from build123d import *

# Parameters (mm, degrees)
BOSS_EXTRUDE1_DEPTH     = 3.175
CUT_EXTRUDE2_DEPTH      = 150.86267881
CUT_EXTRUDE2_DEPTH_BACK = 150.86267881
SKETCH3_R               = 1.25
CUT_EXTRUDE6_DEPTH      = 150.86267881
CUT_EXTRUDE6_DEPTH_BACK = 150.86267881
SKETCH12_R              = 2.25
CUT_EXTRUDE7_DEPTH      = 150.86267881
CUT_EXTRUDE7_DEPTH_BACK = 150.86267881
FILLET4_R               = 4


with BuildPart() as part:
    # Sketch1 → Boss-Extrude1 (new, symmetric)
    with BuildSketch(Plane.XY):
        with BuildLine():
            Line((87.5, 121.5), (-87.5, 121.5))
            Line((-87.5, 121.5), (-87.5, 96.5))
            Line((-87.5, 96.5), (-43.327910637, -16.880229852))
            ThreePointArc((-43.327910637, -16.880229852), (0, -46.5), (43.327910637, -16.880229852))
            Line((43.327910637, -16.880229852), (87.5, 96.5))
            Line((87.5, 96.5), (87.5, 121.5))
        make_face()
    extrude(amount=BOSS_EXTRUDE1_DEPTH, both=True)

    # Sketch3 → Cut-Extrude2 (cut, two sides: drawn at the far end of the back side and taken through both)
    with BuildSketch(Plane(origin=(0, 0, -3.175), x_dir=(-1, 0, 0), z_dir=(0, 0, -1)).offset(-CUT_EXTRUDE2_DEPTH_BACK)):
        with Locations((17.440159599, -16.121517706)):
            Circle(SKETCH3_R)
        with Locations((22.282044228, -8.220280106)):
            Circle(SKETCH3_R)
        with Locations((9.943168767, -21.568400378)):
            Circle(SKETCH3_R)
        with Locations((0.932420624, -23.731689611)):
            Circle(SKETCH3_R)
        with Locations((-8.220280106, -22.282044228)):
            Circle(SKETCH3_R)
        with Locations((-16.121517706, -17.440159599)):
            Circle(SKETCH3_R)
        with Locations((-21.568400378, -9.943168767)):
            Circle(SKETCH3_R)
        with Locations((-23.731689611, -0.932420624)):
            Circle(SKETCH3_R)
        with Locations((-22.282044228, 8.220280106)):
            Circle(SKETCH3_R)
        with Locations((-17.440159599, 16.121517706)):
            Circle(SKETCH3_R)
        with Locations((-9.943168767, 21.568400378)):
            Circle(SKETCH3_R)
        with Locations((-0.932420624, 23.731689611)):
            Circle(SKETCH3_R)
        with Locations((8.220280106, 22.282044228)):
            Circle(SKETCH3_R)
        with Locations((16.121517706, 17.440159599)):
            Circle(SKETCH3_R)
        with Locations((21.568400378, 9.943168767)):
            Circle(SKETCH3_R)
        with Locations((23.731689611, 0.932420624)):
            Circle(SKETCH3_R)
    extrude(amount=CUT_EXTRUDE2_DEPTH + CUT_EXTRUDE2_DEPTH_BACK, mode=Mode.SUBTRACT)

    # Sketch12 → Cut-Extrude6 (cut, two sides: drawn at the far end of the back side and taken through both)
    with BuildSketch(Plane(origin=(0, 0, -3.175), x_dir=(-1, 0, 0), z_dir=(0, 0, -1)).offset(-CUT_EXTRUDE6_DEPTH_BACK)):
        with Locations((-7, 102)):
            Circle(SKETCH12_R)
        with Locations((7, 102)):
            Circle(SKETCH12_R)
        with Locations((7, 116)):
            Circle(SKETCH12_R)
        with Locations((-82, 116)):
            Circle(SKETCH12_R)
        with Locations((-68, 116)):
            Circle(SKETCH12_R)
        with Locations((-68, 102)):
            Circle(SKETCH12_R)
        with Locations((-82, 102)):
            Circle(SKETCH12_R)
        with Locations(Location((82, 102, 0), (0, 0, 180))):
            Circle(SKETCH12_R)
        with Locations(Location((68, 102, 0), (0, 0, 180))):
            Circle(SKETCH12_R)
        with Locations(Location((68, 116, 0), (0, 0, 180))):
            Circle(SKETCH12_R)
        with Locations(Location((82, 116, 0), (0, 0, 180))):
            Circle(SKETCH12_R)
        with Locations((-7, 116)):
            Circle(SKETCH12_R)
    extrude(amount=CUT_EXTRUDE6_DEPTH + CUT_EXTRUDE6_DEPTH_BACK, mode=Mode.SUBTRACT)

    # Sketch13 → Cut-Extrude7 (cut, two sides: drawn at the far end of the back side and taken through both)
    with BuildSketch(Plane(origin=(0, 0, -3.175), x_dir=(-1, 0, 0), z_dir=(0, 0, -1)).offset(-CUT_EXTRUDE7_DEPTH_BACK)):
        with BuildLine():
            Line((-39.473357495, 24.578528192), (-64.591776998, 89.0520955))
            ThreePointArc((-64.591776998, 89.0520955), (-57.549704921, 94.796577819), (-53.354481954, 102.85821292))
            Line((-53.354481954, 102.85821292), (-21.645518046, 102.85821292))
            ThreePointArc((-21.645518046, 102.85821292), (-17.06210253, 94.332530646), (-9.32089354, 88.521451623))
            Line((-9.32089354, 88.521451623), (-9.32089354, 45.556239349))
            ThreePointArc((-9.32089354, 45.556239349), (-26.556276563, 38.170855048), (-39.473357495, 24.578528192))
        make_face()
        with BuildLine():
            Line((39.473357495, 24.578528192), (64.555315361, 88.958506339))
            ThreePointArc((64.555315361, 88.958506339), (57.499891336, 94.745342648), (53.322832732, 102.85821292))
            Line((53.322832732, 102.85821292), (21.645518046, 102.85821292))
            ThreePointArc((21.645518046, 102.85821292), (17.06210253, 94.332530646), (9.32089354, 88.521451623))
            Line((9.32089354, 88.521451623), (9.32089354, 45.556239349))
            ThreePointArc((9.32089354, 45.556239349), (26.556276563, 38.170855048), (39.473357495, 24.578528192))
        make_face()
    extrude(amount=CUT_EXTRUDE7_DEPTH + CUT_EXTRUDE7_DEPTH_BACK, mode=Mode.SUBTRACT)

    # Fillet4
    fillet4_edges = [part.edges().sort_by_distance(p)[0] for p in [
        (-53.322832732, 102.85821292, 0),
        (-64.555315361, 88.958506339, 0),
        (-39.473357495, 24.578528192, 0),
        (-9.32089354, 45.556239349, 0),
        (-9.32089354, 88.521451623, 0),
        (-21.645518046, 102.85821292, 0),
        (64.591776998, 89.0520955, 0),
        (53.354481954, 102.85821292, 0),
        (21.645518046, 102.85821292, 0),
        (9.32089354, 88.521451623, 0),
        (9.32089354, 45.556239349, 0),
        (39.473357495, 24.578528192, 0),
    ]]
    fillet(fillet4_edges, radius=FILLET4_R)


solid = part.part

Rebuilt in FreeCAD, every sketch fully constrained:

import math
import FreeCAD as App
import Part
import Sketcher
from FreeCAD import Vector
Q = App.Units.Quantity


def edges_at(feature, points):
    """Names of the edges that pass closest to the given points."""
    edges = feature.Shape.Edges
    near = lambda p: min(range(len(edges)), key=lambda i: edges[i].distToShape(Part.Vertex(*p))[0])
    return sorted({f"Edge{near(p) + 1}" for p in points})

doc = App.newDocument("Part")
params = doc.addObject("Spreadsheet::Sheet", "Params")
for row, (alias, value) in enumerate([
    ("sketch1_radius", "46.5 mm"),
    ("sketch1_width", "175 mm"),
    ("sketch1_height", "25 mm"),
    ("pad1_length", "6.35 mm"),
    ("sketch2_diameter", "2.5 mm"),
    ("sketch3_diameter", "4.5 mm"),
    ("sketch4_radius", "46.5 mm"),
    ("sketch4_radius2", "22.5 mm"),
    ("fillet_radius", "4 mm"),
], start=1):
    params.set(f"A{row}", alias)
    params.set(f"B{row}", "=" + value)
    params.setAlias(f"B{row}", alias)

body = doc.addObject("PartDesign::Body", "Body")

sketch1 = body.newObject("Sketcher::SketchObject", "Sketch")
sketch1.AttachmentSupport = (doc.getObject("XY_Plane"), [""])
sketch1.MapMode = "FlatFace"
sketch1.addGeometry(Part.LineSegment(Vector(87.5, 121.5, 0), Vector(-87.5, 121.5, 0)), False)
sketch1.addGeometry(Part.LineSegment(Vector(-87.5, 121.5, 0), Vector(-87.5, 96.5, 0)), False)
sketch1.addGeometry(Part.LineSegment(Vector(-87.5, 96.5, 0), Vector(-43.327911, -16.88023, 0)), False)
sketch1.addGeometry(Part.ArcOfCircle(Part.Circle(Vector(0, 0, 0), Vector(0, 0, 1), 46.5), math.radians(-158.714484), math.radians(-21.285516)), False)
sketch1.addGeometry(Part.LineSegment(Vector(43.327911, -16.88023, 0), Vector(87.5, 96.5, 0)), False)
sketch1.addGeometry(Part.LineSegment(Vector(87.5, 96.5, 0), Vector(87.5, 121.5, 0)), False)
sketch1.addConstraint(Sketcher.Constraint("Coincident", 0, 2, 1, 1))
sketch1.addConstraint(Sketcher.Constraint("Coincident", 1, 2, 2, 1))
sketch1.addConstraint(Sketcher.Constraint("Tangent", 2, 2, 3, 1))
sketch1.addConstraint(Sketcher.Constraint("Tangent", 3, 2, 4, 1))
sketch1.addConstraint(Sketcher.Constraint("Coincident", 4, 2, 5, 1))
sketch1.addConstraint(Sketcher.Constraint("Coincident", 5, 2, 0, 1))
sketch1.addConstraint(Sketcher.Constraint("Horizontal", 0))
sketch1.addConstraint(Sketcher.Constraint("Vertical", 1))
sketch1.addConstraint(Sketcher.Constraint("Vertical", 5))
sketch1.addConstraint(Sketcher.Constraint("Coincident", 3, 3, -1, 1))
sketch1.addConstraint(Sketcher.Constraint("Symmetric", 1, 2, 4, 2, -2))
sketch1.addConstraint(Sketcher.Constraint("Radius", 3, Q("46.5 mm")))
sketch1.addConstraint(Sketcher.Constraint("DistanceX", 0, 2, 0, 1, Q("175 mm")))
sketch1.addConstraint(Sketcher.Constraint("DistanceY", 1, 2, 1, 1, Q("25 mm")))
sketch1.addConstraint(Sketcher.Constraint("DistanceY", -1, 1, 0, 2, Q("121.5 mm")))
sketch1.setExpression("Constraints[11]", "Params.sketch1_radius")
sketch1.setExpression("Constraints[12]", "Params.sketch1_width")
sketch1.setExpression("Constraints[13]", "Params.sketch1_height")
pad1 = body.newObject("PartDesign::Pad", "Pad")
pad1.Profile = sketch1
pad1.setExpression("Length", "Params.pad1_length")
pad1.Midplane = True

sketch2 = body.newObject("Sketcher::SketchObject", "Sketch001")
sketch2.AttachmentSupport = (doc.getObject("XY_Plane"), [""])
sketch2.MapMode = "FlatFace"
sketch2.AttachmentOffset = App.Placement(Vector(0, 0, -3.175), App.Rotation())
sketch2.addGeometry(Part.Circle(Vector(-17.44016, -16.121518, 0), Vector(0, 0, 1), 1.25), False)
sketch2.addGeometry(Part.Circle(Vector(-22.282044, -8.22028, 0), Vector(0, 0, 1), 1.25), False)
sketch2.addGeometry(Part.Circle(Vector(-9.943169, -21.5684, 0), Vector(0, 0, 1), 1.25), False)
sketch2.addGeometry(Part.Circle(Vector(-0.932421, -23.73169, 0), Vector(0, 0, 1), 1.25), False)
sketch2.addGeometry(Part.Circle(Vector(8.22028, -22.282044, 0), Vector(0, 0, 1), 1.25), False)
sketch2.addGeometry(Part.Circle(Vector(16.121518, -17.44016, 0), Vector(0, 0, 1), 1.25), False)
sketch2.addGeometry(Part.Circle(Vector(21.5684, -9.943169, 0), Vector(0, 0, 1), 1.25), False)
sketch2.addGeometry(Part.Circle(Vector(23.73169, -0.932421, 0), Vector(0, 0, 1), 1.25), False)
sketch2.addGeometry(Part.Circle(Vector(22.282044, 8.22028, 0), Vector(0, 0, 1), 1.25), False)
sketch2.addGeometry(Part.Circle(Vector(17.44016, 16.121518, 0), Vector(0, 0, 1), 1.25), False)
sketch2.addGeometry(Part.Circle(Vector(9.943169, 21.5684, 0), Vector(0, 0, 1), 1.25), False)
sketch2.addGeometry(Part.Circle(Vector(0.932421, 23.73169, 0), Vector(0, 0, 1), 1.25), False)
sketch2.addGeometry(Part.Circle(Vector(-8.22028, 22.282044, 0), Vector(0, 0, 1), 1.25), False)
sketch2.addGeometry(Part.Circle(Vector(-16.121518, 17.44016, 0), Vector(0, 0, 1), 1.25), False)
sketch2.addGeometry(Part.Circle(Vector(-21.5684, 9.943169, 0), Vector(0, 0, 1), 1.25), False)
sketch2.addGeometry(Part.Circle(Vector(-23.73169, 0.932421, 0), Vector(0, 0, 1), 1.25), False)
sketch2.addConstraint(Sketcher.Constraint("Equal", 0, 1))
sketch2.addConstraint(Sketcher.Constraint("Equal", 1, 2))
sketch2.addConstraint(Sketcher.Constraint("Equal", 2, 3))
sketch2.addConstraint(Sketcher.Constraint("Equal", 3, 4))
sketch2.addConstraint(Sketcher.Constraint("Equal", 4, 5))
sketch2.addConstraint(Sketcher.Constraint("Equal", 5, 6))
sketch2.addConstraint(Sketcher.Constraint("Equal", 6, 7))
sketch2.addConstraint(Sketcher.Constraint("Equal", 7, 8))
sketch2.addConstraint(Sketcher.Constraint("Equal", 8, 9))
sketch2.addConstraint(Sketcher.Constraint("Equal", 9, 10))
sketch2.addConstraint(Sketcher.Constraint("Equal", 10, 11))
sketch2.addConstraint(Sketcher.Constraint("Equal", 11, 12))
sketch2.addConstraint(Sketcher.Constraint("Equal", 12, 13))
sketch2.addConstraint(Sketcher.Constraint("Equal", 13, 14))
sketch2.addConstraint(Sketcher.Constraint("Equal", 14, 15))
sketch2.addConstraint(Sketcher.Constraint("Symmetric", 1, 3, 8, 3, -1, 1))
sketch2.addConstraint(Sketcher.Constraint("Symmetric", 0, 3, 9, 3, -1, 1))
sketch2.addConstraint(Sketcher.Constraint("Symmetric", 2, 3, 10, 3, -1, 1))
sketch2.addConstraint(Sketcher.Constraint("Symmetric", 3, 3, 11, 3, -1, 1))
sketch2.addConstraint(Sketcher.Constraint("Symmetric", 4, 3, 12, 3, -1, 1))
sketch2.addConstraint(Sketcher.Constraint("Symmetric", 5, 3, 13, 3, -1, 1))
sketch2.addConstraint(Sketcher.Constraint("Symmetric", 6, 3, 14, 3, -1, 1))
sketch2.addConstraint(Sketcher.Constraint("Symmetric", 7, 3, 15, 3, -1, 1))
sketch2.addConstraint(Sketcher.Constraint("Diameter", 0, Q("2.5 mm")))
sketch2.addConstraint(Sketcher.Constraint("DistanceY", 2, 3, -1, 1, Q("21.5684 mm")))
sketch2.addConstraint(Sketcher.Constraint("DistanceX", -1, 1, 6, 3, Q("21.5684 mm")))
sketch2.addConstraint(Sketcher.Constraint("DistanceX", 3, 3, 4, 3, Q("9.152701 mm")))
sketch2.addConstraint(Sketcher.Constraint("DistanceY", 7, 3, 8, 3, Q("9.152701 mm")))
sketch2.addConstraint(Sketcher.Constraint("DistanceX", 0, 3, -1, 1, Q("17.44016 mm")))
sketch2.addConstraint(Sketcher.Constraint("DistanceY", 1, 3, -1, 1, Q("8.22028 mm")))
sketch2.addConstraint(Sketcher.Constraint("DistanceX", 2, 3, -1, 1, Q("9.943169 mm")))
sketch2.addConstraint(Sketcher.Constraint("DistanceX", 3, 3, -1, 1, Q("0.932421 mm")))
sketch2.addConstraint(Sketcher.Constraint("DistanceY", 3, 3, -1, 1, Q("23.73169 mm")))
sketch2.addConstraint(Sketcher.Constraint("DistanceY", 5, 3, -1, 1, Q("17.44016 mm")))
sketch2.addConstraint(Sketcher.Constraint("DistanceY", 6, 3, -1, 1, Q("9.943169 mm")))
sketch2.addConstraint(Sketcher.Constraint("DistanceX", -1, 1, 7, 3, Q("23.73169 mm")))
sketch2.addConstraint(Sketcher.Constraint("DistanceY", 3, 3, 0, 3, Q("7.610172 mm")))
sketch2.addConstraint(Sketcher.Constraint("DistanceX", 3, 3, 5, 3, Q("17.053938 mm")))
sketch2.addConstraint(Sketcher.Constraint("DistanceX", 1, 3, 5, 3, Q("38.403562 mm")))
sketch2.addConstraint(Sketcher.Constraint("DistanceY", 4, 3, 9, 3, Q("38.403562 mm")))
sketch2.setExpression("Constraints[23]", "Params.sketch2_diameter")
pocket1 = body.newObject("PartDesign::Pocket", "Pocket")
pocket1.Profile = sketch2
pocket1.Type = "ThroughAll"
pocket1.Midplane = True

sketch3 = body.newObject("Sketcher::SketchObject", "Sketch002")
sketch3.AttachmentSupport = (doc.getObject("XY_Plane"), [""])
sketch3.MapMode = "FlatFace"
sketch3.AttachmentOffset = App.Placement(Vector(0, 0, -3.175), App.Rotation())
sketch3.addGeometry(Part.Circle(Vector(7, 102, 0), Vector(0, 0, 1), 2.25), False)
sketch3.addGeometry(Part.Circle(Vector(-7, 102, 0), Vector(0, 0, 1), 2.25), False)
sketch3.addGeometry(Part.Circle(Vector(-7, 116, 0), Vector(0, 0, 1), 2.25), False)
sketch3.addGeometry(Part.Circle(Vector(82, 116, 0), Vector(0, 0, 1), 2.25), False)
sketch3.addGeometry(Part.Circle(Vector(68, 116, 0), Vector(0, 0, 1), 2.25), False)
sketch3.addGeometry(Part.Circle(Vector(68, 102, 0), Vector(0, 0, 1), 2.25), False)
sketch3.addGeometry(Part.Circle(Vector(82, 102, 0), Vector(0, 0, 1), 2.25), False)
sketch3.addGeometry(Part.Circle(Vector(-82, 102, 0), Vector(0, 0, 1), 2.25), False)
sketch3.addGeometry(Part.Circle(Vector(-68, 102, 0), Vector(0, 0, 1), 2.25), False)
sketch3.addGeometry(Part.Circle(Vector(-68, 116, 0), Vector(0, 0, 1), 2.25), False)
sketch3.addGeometry(Part.Circle(Vector(-82, 116, 0), Vector(0, 0, 1), 2.25), False)
sketch3.addGeometry(Part.Circle(Vector(7, 116, 0), Vector(0, 0, 1), 2.25), False)
sketch3.addConstraint(Sketcher.Constraint("Equal", 0, 1))
sketch3.addConstraint(Sketcher.Constraint("Equal", 1, 2))
sketch3.addConstraint(Sketcher.Constraint("Equal", 2, 3))
sketch3.addConstraint(Sketcher.Constraint("Equal", 3, 4))
sketch3.addConstraint(Sketcher.Constraint("Equal", 4, 5))
sketch3.addConstraint(Sketcher.Constraint("Equal", 5, 6))
sketch3.addConstraint(Sketcher.Constraint("Equal", 6, 7))
sketch3.addConstraint(Sketcher.Constraint("Equal", 7, 8))
sketch3.addConstraint(Sketcher.Constraint("Equal", 8, 9))
sketch3.addConstraint(Sketcher.Constraint("Equal", 9, 10))
sketch3.addConstraint(Sketcher.Constraint("Equal", 10, 11))
sketch3.addConstraint(Sketcher.Constraint("Symmetric", 0, 3, 1, 3, -2))
sketch3.addConstraint(Sketcher.Constraint("Symmetric", 6, 3, 7, 3, -2))
sketch3.addConstraint(Sketcher.Constraint("Symmetric", 5, 3, 8, 3, -2))
sketch3.addConstraint(Sketcher.Constraint("Symmetric", 4, 3, 9, 3, -2))
sketch3.addConstraint(Sketcher.Constraint("Symmetric", 3, 3, 10, 3, -2))
sketch3.addConstraint(Sketcher.Constraint("Symmetric", 2, 3, 11, 3, -2))
sketch3.addConstraint(Sketcher.Constraint("Horizontal", 2, 3, 3, 3))
sketch3.addConstraint(Sketcher.Constraint("Horizontal", 3, 3, 4, 3))
sketch3.addConstraint(Sketcher.Constraint("Horizontal", 1, 3, 5, 3))
sketch3.addConstraint(Sketcher.Constraint("Horizontal", 5, 3, 6, 3))
sketch3.addConstraint(Sketcher.Constraint("Vertical", 1, 3, 2, 3))
sketch3.addConstraint(Sketcher.Constraint("Vertical", 4, 3, 5, 3))
sketch3.addConstraint(Sketcher.Constraint("Vertical", 3, 3, 6, 3))
sketch3.addConstraint(Sketcher.Constraint("Diameter", 0, Q("4.5 mm")))
sketch3.addConstraint(Sketcher.Constraint("DistanceX", -1, 1, 0, 3, Q("7 mm")))
sketch3.addConstraint(Sketcher.Constraint("DistanceY", -1, 1, 0, 3, Q("102 mm")))
sketch3.addConstraint(Sketcher.Constraint("DistanceY", -1, 1, 2, 3, Q("116 mm")))
sketch3.addConstraint(Sketcher.Constraint("DistanceX", -1, 1, 3, 3, Q("82 mm")))
sketch3.addConstraint(Sketcher.Constraint("DistanceX", -1, 1, 4, 3, Q("68 mm")))
sketch3.setExpression("Constraints[24]", "Params.sketch3_diameter")
pocket2 = body.newObject("PartDesign::Pocket", "Pocket001")
pocket2.Profile = sketch3
pocket2.Type = "ThroughAll"
pocket2.Midplane = True

sketch4 = body.newObject("Sketcher::SketchObject", "Sketch003")
sketch4.AttachmentSupport = (doc.getObject("XY_Plane"), [""])
sketch4.MapMode = "FlatFace"
sketch4.AttachmentOffset = App.Placement(Vector(0, 0, -3.175), App.Rotation())
sketch4.addGeometry(Part.LineSegment(Vector(64.591777, 89.052095, 0), Vector(39.473357, 24.578528, 0)), False)
sketch4.addGeometry(Part.ArcOfCircle(Part.Circle(Vector(0, 0, 0), Vector(0, 0, 1), 46.5), math.radians(31.90892), math.radians(78.436765)), False)
sketch4.addGeometry(Part.LineSegment(Vector(9.320894, 45.556239, 0), Vector(9.320894, 88.521452, 0)), False)
sketch4.addGeometry(Part.ArcOfCircle(Part.Circle(Vector(0, 109, 0), Vector(0, 0, 1), 22.5), math.radians(-65.527154), math.radians(-15.840976)), False)
sketch4.addGeometry(Part.LineSegment(Vector(21.645518, 102.858213, 0), Vector(53.354482, 102.858213, 0)), False)
sketch4.addGeometry(Part.ArcOfCircle(Part.Circle(Vector(75, 109, 0), Vector(0, 0, 1), 22.5), math.radians(-164.159024), math.radians(-117.554213)), False)
sketch4.addGeometry(Part.LineSegment(Vector(-39.473357, 24.578528, 0), Vector(-64.555315, 88.958506, 0)), False)
sketch4.addGeometry(Part.ArcOfCircle(Part.Circle(Vector(-75, 108.887344, 0), Vector(0, 0, 1), 22.5), math.radians(-62.341009), math.radians(-15.542993)), False)
sketch4.addGeometry(Part.LineSegment(Vector(-53.322833, 102.858213, 0), Vector(-21.645518, 102.858213, 0)), False)
sketch4.addGeometry(Part.ArcOfCircle(Part.Circle(Vector(0, 109, 0), Vector(0, 0, 1), 22.5), math.radians(-164.159024), math.radians(-114.472846)), False)
sketch4.addGeometry(Part.LineSegment(Vector(-9.320894, 88.521452, 0), Vector(-9.320894, 45.556239, 0)), False)
sketch4.addGeometry(Part.ArcOfCircle(Part.Circle(Vector(0, 0, 0), Vector(0, 0, 1), 46.5), math.radians(101.563235), math.radians(148.09108)), False)
sketch4.addConstraint(Sketcher.Constraint("Coincident", 0, 2, 1, 1))
sketch4.addConstraint(Sketcher.Constraint("Coincident", 1, 2, 2, 1))
sketch4.addConstraint(Sketcher.Constraint("Coincident", 2, 2, 3, 1))
sketch4.addConstraint(Sketcher.Constraint("Coincident", 3, 2, 4, 1))
sketch4.addConstraint(Sketcher.Constraint("Coincident", 4, 2, 5, 1))
sketch4.addConstraint(Sketcher.Constraint("Coincident", 5, 2, 0, 1))
sketch4.addConstraint(Sketcher.Constraint("Coincident", 6, 2, 7, 1))
sketch4.addConstraint(Sketcher.Constraint("Coincident", 7, 2, 8, 1))
sketch4.addConstraint(Sketcher.Constraint("Coincident", 8, 2, 9, 1))
sketch4.addConstraint(Sketcher.Constraint("Coincident", 9, 2, 10, 1))
sketch4.addConstraint(Sketcher.Constraint("Coincident", 10, 2, 11, 1))
sketch4.addConstraint(Sketcher.Constraint("Coincident", 11, 2, 6, 1))
sketch4.addConstraint(Sketcher.Constraint("Vertical", 2))
sketch4.addConstraint(Sketcher.Constraint("Horizontal", 4))
sketch4.addConstraint(Sketcher.Constraint("Horizontal", 8))
sketch4.addConstraint(Sketcher.Constraint("Vertical", 10))
sketch4.addConstraint(Sketcher.Constraint("Coincident", 1, 3, -1, 1))
sketch4.addConstraint(Sketcher.Constraint("Coincident", 11, 3, -1, 1))
sketch4.addConstraint(Sketcher.Constraint("Coincident", 9, 3, 3, 3))
sketch4.addConstraint(Sketcher.Constraint("Equal", 3, 5))
sketch4.addConstraint(Sketcher.Constraint("Equal", 5, 7))
sketch4.addConstraint(Sketcher.Constraint("Equal", 7, 9))
sketch4.addConstraint(Sketcher.Constraint("Equal", 1, 11))
sketch4.addConstraint(Sketcher.Constraint("Symmetric", 3, 2, 8, 2, -2))
sketch4.addConstraint(Sketcher.Constraint("Horizontal", 3, 3, 5, 3))
sketch4.addConstraint(Sketcher.Constraint("Horizontal", 2, 2, 9, 2))
sketch4.addConstraint(Sketcher.Constraint("Horizontal", 0, 2, 11, 2))
sketch4.addConstraint(Sketcher.Constraint("Radius", 1, Q("46.5 mm")))
sketch4.addConstraint(Sketcher.Constraint("Radius", 3, Q("22.5 mm")))
sketch4.addConstraint(Sketcher.Constraint("DistanceY", -1, 1, 3, 3, Q("109 mm")))
sketch4.addConstraint(Sketcher.Constraint("DistanceX", -1, 1, 5, 3, Q("75 mm")))
sketch4.addConstraint(Sketcher.Constraint("DistanceX", 7, 3, -1, 1, Q("75 mm")))
sketch4.addConstraint(Sketcher.Constraint("DistanceX", 4, 1, 4, 2, Q("31.708964 mm")))
sketch4.addConstraint(Sketcher.Constraint("DistanceX", 8, 1, 8, 2, Q("31.677315 mm")))
sketch4.addConstraint(Sketcher.Constraint("DistanceY", 2, 1, 2, 2, Q("42.965212 mm")))
sketch4.addConstraint(Sketcher.Constraint("DistanceY", -1, 1, 0, 2, Q("24.578528 mm")))
sketch4.addConstraint(Sketcher.Constraint("DistanceX", 3, 2, 5, 2, Q("42.946259 mm")))
sketch4.addConstraint(Sketcher.Constraint("DistanceX", 6, 2, 2, 2, Q("73.876209 mm")))
sketch4.setExpression("Constraints[27]", "Params.sketch4_radius")
sketch4.setExpression("Constraints[28]", "Params.sketch4_radius2")
pocket3 = body.newObject("PartDesign::Pocket", "Pocket002")
pocket3.Profile = sketch4
pocket3.Type = "ThroughAll"
pocket3.Midplane = True
doc.recompute()

fillet = body.newObject("PartDesign::Fillet", "Fillet")
fillet.Base = (pocket3, edges_at(pocket3, [
    (-53.323, 102.858, 0),
    (-64.555, 88.959, 0),
    (-39.473, 24.579, 0),
    (-9.321, 45.556, 0),
    (-9.321, 88.521, 0),
    (-21.646, 102.858, 0),
    (64.592, 89.052, 0),
    (53.354, 102.858, 0),
    (21.646, 102.858, 0),
    (9.321, 88.521, 0),
    (9.321, 45.556, 0),
    (39.473, 24.579, 0),
]))
fillet.setExpression("Radius", "Params.fillet_radius")

doc.recompute()
